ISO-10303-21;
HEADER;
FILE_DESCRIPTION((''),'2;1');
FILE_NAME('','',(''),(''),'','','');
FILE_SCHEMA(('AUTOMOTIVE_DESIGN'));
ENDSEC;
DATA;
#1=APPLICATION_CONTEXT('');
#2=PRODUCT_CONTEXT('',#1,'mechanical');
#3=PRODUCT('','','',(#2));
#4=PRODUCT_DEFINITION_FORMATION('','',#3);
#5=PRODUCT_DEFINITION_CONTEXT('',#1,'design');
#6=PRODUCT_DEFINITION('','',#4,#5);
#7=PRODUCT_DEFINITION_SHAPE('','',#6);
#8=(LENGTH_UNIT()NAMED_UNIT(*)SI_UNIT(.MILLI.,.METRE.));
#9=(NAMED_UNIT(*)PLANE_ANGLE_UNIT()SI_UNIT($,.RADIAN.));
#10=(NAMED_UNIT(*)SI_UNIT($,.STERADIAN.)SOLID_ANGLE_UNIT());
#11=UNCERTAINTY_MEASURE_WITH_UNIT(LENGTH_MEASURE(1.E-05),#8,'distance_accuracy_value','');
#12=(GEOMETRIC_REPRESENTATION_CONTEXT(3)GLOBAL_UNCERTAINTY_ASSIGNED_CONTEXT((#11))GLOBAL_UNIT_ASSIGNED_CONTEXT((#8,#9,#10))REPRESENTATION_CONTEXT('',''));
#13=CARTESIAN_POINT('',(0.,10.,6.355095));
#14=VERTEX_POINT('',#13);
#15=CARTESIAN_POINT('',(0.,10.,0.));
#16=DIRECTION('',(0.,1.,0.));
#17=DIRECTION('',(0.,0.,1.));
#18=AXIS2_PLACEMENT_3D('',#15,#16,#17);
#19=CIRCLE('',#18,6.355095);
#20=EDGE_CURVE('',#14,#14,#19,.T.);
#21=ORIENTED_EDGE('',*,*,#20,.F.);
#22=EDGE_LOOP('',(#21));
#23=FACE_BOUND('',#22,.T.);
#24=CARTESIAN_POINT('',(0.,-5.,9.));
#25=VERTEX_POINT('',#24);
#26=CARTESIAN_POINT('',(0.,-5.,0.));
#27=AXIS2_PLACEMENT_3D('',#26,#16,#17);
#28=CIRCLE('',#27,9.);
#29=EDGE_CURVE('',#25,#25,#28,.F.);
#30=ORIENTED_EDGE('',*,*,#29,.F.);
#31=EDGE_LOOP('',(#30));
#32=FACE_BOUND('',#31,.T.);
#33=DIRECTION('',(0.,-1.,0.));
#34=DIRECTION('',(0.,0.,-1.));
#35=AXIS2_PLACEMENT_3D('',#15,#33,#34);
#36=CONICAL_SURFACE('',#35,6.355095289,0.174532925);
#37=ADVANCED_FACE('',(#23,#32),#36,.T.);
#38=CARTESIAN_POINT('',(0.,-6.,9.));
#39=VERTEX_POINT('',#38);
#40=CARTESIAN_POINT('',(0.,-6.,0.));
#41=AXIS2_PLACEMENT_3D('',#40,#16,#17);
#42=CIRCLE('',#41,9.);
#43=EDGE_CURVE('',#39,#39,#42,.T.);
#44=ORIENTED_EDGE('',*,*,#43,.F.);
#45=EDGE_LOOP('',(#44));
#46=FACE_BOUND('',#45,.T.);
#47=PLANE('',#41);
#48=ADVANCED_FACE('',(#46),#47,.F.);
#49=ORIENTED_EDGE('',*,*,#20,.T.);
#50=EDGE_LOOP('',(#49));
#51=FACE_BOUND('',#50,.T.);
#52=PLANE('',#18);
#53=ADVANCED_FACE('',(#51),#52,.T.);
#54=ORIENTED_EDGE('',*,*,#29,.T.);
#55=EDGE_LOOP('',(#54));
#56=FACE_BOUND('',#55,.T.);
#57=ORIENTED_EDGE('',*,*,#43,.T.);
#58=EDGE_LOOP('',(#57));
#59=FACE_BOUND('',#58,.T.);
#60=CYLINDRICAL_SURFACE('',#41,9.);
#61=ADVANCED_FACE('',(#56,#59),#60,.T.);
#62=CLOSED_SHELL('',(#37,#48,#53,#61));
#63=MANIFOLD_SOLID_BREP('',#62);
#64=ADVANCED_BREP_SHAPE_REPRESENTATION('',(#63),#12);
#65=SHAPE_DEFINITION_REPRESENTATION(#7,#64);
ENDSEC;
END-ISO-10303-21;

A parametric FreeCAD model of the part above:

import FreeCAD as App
import Part
import Sketcher
from FreeCAD import Vector
Q = App.Units.Quantity


def edges_at(feature, points):
    """Names of the edges that pass closest to the given points."""
    edges = feature.Shape.Edges
    near = lambda p: min(range(len(edges)), key=lambda i: edges[i].distToShape(Part.Vertex(*p))[0])
    return sorted({f"Edge{near(p) + 1}" for p in points})

doc = App.newDocument("Part")
body = doc.addObject("PartDesign::Body", "Body")

sketch1 = doc.addObject("Sketcher::SketchObject", "Sketch")
body.addObject(sketch1)
sketch1.AttachmentSupport = (doc.XZ_Plane, [""])
sketch1.MapMode = "FlatFace"
sketch1.addGeometry(Part.Circle(Vector(0, 0, 0), Vector(0, 0, 1), 9), False)
sketch1.addConstraint([
    Sketcher.Constraint("Coincident", 0, 3, -1, 1),
    Sketcher.Constraint("Diameter", 0, Q("18 mm")),
])
pad1 = doc.addObject("PartDesign::Pad", "Pad")
body.addObject(pad1)
pad1.Profile = sketch1
pad1.Type = "TwoLengths"
pad1.Length = 10
pad1.Length2 = 6
pad1.Reversed = True
doc.recompute()

chamfer = doc.addObject("PartDesign::Chamfer", "Chamfer")
body.addObject(chamfer)
chamfer.Base = (pad1, edges_at(pad1, [(0, 10, -9)]))
chamfer.ChamferType = "Two distances"
chamfer.Size = 15
chamfer.Size2 = 2.644905

doc.recompute()
